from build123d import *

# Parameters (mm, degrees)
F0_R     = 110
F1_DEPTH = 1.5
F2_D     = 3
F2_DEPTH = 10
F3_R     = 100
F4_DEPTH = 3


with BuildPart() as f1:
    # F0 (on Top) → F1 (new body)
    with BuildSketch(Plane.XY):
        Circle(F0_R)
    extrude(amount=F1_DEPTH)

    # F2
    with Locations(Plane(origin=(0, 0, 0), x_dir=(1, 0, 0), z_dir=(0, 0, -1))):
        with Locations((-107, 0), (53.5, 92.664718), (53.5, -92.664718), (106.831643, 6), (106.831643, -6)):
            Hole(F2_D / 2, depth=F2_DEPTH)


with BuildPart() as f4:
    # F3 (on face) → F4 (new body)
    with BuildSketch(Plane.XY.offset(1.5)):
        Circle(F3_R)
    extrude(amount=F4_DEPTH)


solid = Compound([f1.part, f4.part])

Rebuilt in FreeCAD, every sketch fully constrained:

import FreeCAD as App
import Part
import Sketcher
Q = App.Units.Quantity

doc = App.newDocument("Part")
body = doc.addObject("PartDesign::Body", "Body")

sketch1 = body.newObject("Sketcher::SketchObject", "Sketch")
sketch1.AttachmentSupport = (doc.getObject("XY_Plane"), [""])
sketch1.MapMode = "FlatFace"
sketch1.addGeometry(Part.Circle(App.Vector(0, 0, 0), App.Vector(0, 0, 1), 110), False)
sketch1.addConstraint([
    Sketcher.Constraint("Coincident", 0, 3, -1, 1),
    Sketcher.Constraint("Diameter", 0, Q("220 mm")),
])
pad1 = body.newObject("PartDesign::Pad", "Pad")
pad1.Profile = sketch1
pad1.Length = 1.5

sketch2 = body.newObject("Sketcher::SketchObject", "Sketch001")
sketch2.AttachmentSupport = (doc.getObject("XY_Plane"), [""])
sketch2.MapMode = "FlatFace"
sketch2.addGeometry([
    Part.Circle(App.Vector(-107, 0, 0), App.Vector(0, 0, 1), 1.5),
    Part.Circle(App.Vector(53.5, -92.7, 0), App.Vector(0, 0, 1), 1.5),
    Part.Circle(App.Vector(53.5, 92.7, 0), App.Vector(0, 0, 1), 1.5),
    Part.Circle(App.Vector(106.8, -6, 0), App.Vector(0, 0, 1), 1.5),
    Part.Circle(App.Vector(106.8, 6, 0), App.Vector(0, 0, 1), 1.5),
], False)
sketch2.addConstraint([
    Sketcher.Constraint("Equal", 0, 1),
    Sketcher.Constraint("Equal", 1, 2),
    Sketcher.Constraint("Equal", 2, 3),
    Sketcher.Constraint("Equal", 3, 4),
    Sketcher.Constraint("Symmetric", 1, 3, 2, 3, -1),
    Sketcher.Constraint("Symmetric", 3, 3, 4, 3, -1),
    Sketcher.Constraint("PointOnObject", 0, 3, -1),
    Sketcher.Constraint("Diameter", 0, Q("3 mm")),
    Sketcher.Constraint("DistanceX", 0, 3, -1, 1, Q("107 mm")),
    Sketcher.Constraint("DistanceY", 3, 3, -1, 1, Q("6 mm")),
    Sketcher.Constraint("DistanceX", -1, 1, 1, 3, Q("53.5 mm")),
    Sketcher.Constraint("DistanceY", 1, 3, -1, 1, Q("92.664718 mm")),
    Sketcher.Constraint("DistanceX", -1, 1, 3, 3, Q("106.831643 mm")),
])
doc.recompute()
hole = body.newObject("PartDesign::Hole", "Hole")
hole.Profile = sketch2
hole.ThreadType = "None"
hole.Diameter = 3
hole.DepthType = "Dimension"
hole.Depth = 10
hole.DrillPoint = "Flat"
hole.Reversed = True
body2 = doc.addObject("PartDesign::Body", "Body001")

sketch3 = body2.newObject("Sketcher::SketchObject", "Sketch002")
sketch3.AttachmentSupport = (doc.getObject("XY_Plane001"), [""])
sketch3.MapMode = "FlatFace"
sketch3.AttachmentOffset = App.Placement(App.Vector(0, 0, 1.5), App.Rotation())
sketch3.addGeometry(Part.Circle(App.Vector(0, 0, 0), App.Vector(0, 0, 1), 100), False)
sketch3.addConstraint([
    Sketcher.Constraint("Coincident", 0, 3, -1, 1),
    Sketcher.Constraint("Diameter", 0, Q("200 mm")),
])
pad2 = body2.newObject("PartDesign::Pad", "Pad001")
pad2.Profile = sketch3
pad2.Length = 3

doc.recompute()
